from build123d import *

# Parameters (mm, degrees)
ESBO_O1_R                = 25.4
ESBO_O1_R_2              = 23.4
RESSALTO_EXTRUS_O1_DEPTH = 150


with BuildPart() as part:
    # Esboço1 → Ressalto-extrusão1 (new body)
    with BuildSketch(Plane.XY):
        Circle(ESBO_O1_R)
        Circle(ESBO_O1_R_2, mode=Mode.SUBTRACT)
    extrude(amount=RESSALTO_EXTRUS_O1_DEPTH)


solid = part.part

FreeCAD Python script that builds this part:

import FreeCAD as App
import Part
import Sketcher

doc = App.newDocument("Part")
params = doc.addObject("Spreadsheet::Sheet", "Params")
for row, (alias, value) in enumerate([
    ("sketch1_diameter", "50.8 mm"),
    ("sketch1_diameter2", "46.8 mm"),
    ("pad1_length", "150 mm"),
], start=1):
    params.set(f"A{row}", alias)
    params.set(f"B{row}", "=" + value)
    params.setAlias(f"B{row}", alias)

body = doc.addObject("PartDesign::Body", "Body")

sketch1 = body.newObject("Sketcher::SketchObject", "Sketch")
sketch1.AttachmentSupport = (doc.getObject("XY_Plane"), [""])
sketch1.MapMode = "FlatFace"
sketch1.addGeometry([
    Part.Circle(App.Vector(0, 0, 0), App.Vector(0, 0, 1), 25),
    Part.Circle(App.Vector(0, 0, 0), App.Vector(0, 0, 1), 23),
], False)
sketch1.addConstraint([
    Sketcher.Constraint("Coincident", 0, 3, -1, 1),
    Sketcher.Constraint("Coincident", 1, 3, -1, 1),
    Sketcher.Constraint("Diameter", 0, 50.8),
    Sketcher.Constraint("Diameter", 1, 46.8),
])
sketch1.setExpression("Constraints[2]", "Params.sketch1_diameter")
sketch1.setExpression("Constraints[3]", "Params.sketch1_diameter2")
pad1 = body.newObject("PartDesign::Pad", "Pad")
pad1.Profile = sketch1
pad1.setExpression("Length", "Params.pad1_length")

doc.recompute()
